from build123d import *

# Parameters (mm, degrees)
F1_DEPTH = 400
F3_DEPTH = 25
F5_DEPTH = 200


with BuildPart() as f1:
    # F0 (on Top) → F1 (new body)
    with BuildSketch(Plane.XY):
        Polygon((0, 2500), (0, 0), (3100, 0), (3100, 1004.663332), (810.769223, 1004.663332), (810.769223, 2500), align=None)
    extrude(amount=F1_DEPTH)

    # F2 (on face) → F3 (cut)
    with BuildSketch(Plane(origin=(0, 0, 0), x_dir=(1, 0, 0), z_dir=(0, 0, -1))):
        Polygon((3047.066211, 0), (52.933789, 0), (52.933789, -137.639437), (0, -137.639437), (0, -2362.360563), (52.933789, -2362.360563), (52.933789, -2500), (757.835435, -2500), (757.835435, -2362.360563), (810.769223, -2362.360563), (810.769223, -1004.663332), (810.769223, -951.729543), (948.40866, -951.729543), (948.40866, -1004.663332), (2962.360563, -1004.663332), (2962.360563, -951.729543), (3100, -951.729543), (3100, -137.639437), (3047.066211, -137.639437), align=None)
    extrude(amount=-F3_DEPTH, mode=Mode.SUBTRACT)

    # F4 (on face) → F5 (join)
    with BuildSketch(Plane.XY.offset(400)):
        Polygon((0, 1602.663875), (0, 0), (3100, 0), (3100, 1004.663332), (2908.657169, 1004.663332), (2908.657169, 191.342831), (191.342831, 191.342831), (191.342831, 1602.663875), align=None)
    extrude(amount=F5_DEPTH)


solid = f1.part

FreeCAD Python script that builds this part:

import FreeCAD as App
import Part
import Sketcher
from FreeCAD import Vector


def add_polygon(sketch, points):
    """Adds a closed chain of lines whose ends are joined by coincident constraints."""
    first, n = sketch.GeometryCount, len(points)
    for a, b in zip(points, points[1:] + points[:1]):
        sketch.addGeometry(Part.LineSegment(App.Vector(*a, 0), App.Vector(*b, 0)), False)
    for i in range(n):
        sketch.addConstraint(Sketcher.Constraint("Coincident", first + i, 2, first + (i + 1) % n, 1))

doc = App.newDocument("Part")
body = doc.addObject("PartDesign::Body", "Body")

sketch1 = body.newObject("Sketcher::SketchObject", "Sketch")
sketch1.AttachmentSupport = (doc.getObject("XY_Plane"), [""])
sketch1.MapMode = "FlatFace"
add_polygon(sketch1, [(0, 2500), (0, 0), (3100, 0), (3100, 1005), (811, 1005), (811, 2500)])
sketch1.addConstraint([
    Sketcher.Constraint("Vertical", 0),
    Sketcher.Constraint("Horizontal", 1),
    Sketcher.Constraint("Vertical", 2),
    Sketcher.Constraint("Horizontal", 3),
    Sketcher.Constraint("Vertical", 4),
    Sketcher.Constraint("Horizontal", 5),
    Sketcher.Constraint("Coincident", 0, 2, -1, 1),
    Sketcher.Constraint("DistanceX", 1, 1, 1, 2, 3100.0),
    Sketcher.Constraint("DistanceY", 0, 2, 0, 1, 2500.0),
    Sketcher.Constraint("DistanceY", 2, 1, 2, 2, 1004.663332),
    Sketcher.Constraint("DistanceX", 3, 2, 3, 1, 2289.230777),
])
pad1 = body.newObject("PartDesign::Pad", "Pad")
pad1.Profile = sketch1
pad1.Length = 400

sketch2 = body.newObject("Sketcher::SketchObject", "Sketch001")
sketch2.AttachmentSupport = (doc.getObject("XY_Plane"), [""])
sketch2.MapMode = "FlatFace"
add_polygon(sketch2, [(3047, 0), (53, 0), (53, 138), (0, 138), (0, 2362), (53, 2362), (53, 2500), (758, 2500), (758, 2362), (811, 2362), (811, 952), (948, 952), (948, 1005), (2962, 1005), (2962, 952), (3100, 952), (3100, 138), (3047, 138)])
sketch2.addConstraint([
    Sketcher.Constraint("Horizontal", 0),
    Sketcher.Constraint("Vertical", 1),
    Sketcher.Constraint("Horizontal", 2),
    Sketcher.Constraint("Vertical", 3),
    Sketcher.Constraint("Horizontal", 4),
    Sketcher.Constraint("Vertical", 5),
    Sketcher.Constraint("Horizontal", 6),
    Sketcher.Constraint("Vertical", 7),
    Sketcher.Constraint("Horizontal", 8),
    Sketcher.Constraint("Vertical", 9),
    Sketcher.Constraint("Horizontal", 10),
    Sketcher.Constraint("Vertical", 11),
    Sketcher.Constraint("Horizontal", 12),
    Sketcher.Constraint("Vertical", 13),
    Sketcher.Constraint("Horizontal", 14),
    Sketcher.Constraint("Vertical", 15),
    Sketcher.Constraint("Horizontal", 16),
    Sketcher.Constraint("Vertical", 17),
    Sketcher.Constraint("PointOnObject", 0, 2, -1),
    Sketcher.Constraint("PointOnObject", 2, 2, -2),
    Sketcher.Constraint("Horizontal", 4, 2, 7, 2),
    Sketcher.Constraint("Horizontal", 10, 2, 13, 2),
    Sketcher.Constraint("Horizontal", 2, 2, 15, 2),
    Sketcher.Constraint("Vertical", 1, 2, 4, 2),
    Sketcher.Constraint("Equal", 4, 8),
    Sketcher.Constraint("Equal", 10, 14),
    Sketcher.Constraint("Equal", 8, 16),
    Sketcher.Constraint("Equal", 14, 1),
    Sketcher.Constraint("Equal", 1, 5),
    Sketcher.Constraint("Equal", 16, 11),
    Sketcher.Constraint("DistanceY", -1, 1, 5, 2, 2500.0),
    Sketcher.Constraint("DistanceX", -1, 1, 14, 2, 3100.0),
    Sketcher.Constraint("DistanceX", 0, 2, 0, 1, 2994.132422),
    Sketcher.Constraint("DistanceY", 9, 2, 9, 1, 1410.63102),
    Sketcher.Constraint("DistanceX", 6, 1, 6, 2, 704.901646),
    Sketcher.Constraint("DistanceX", 10, 1, 10, 2, 137.639437),
])
pocket1 = body.newObject("PartDesign::Pocket", "Pocket")
pocket1.Profile = sketch2
pocket1.Length = 25
pocket1.Reversed = True

sketch3 = body.newObject("Sketcher::SketchObject", "Sketch002")
sketch3.AttachmentSupport = (doc.getObject("XY_Plane"), [""])
sketch3.MapMode = "FlatFace"
sketch3.AttachmentOffset = App.Placement(Vector(0, 0, 400), App.Rotation())
add_polygon(sketch3, [(0, 1603), (0, 0), (3100, 0), (3100, 1005), (2909, 1005), (2909, 191), (191, 191), (191, 1603)])
sketch3.addConstraint([
    Sketcher.Constraint("Vertical", 0),
    Sketcher.Constraint("Horizontal", 1),
    Sketcher.Constraint("Vertical", 2),
    Sketcher.Constraint("Horizontal", 3),
    Sketcher.Constraint("Vertical", 4),
    Sketcher.Constraint("Horizontal", 5),
    Sketcher.Constraint("Vertical", 6),
    Sketcher.Constraint("Horizontal", 7),
    Sketcher.Constraint("Coincident", 0, 2, -1, 1),
    Sketcher.Constraint("Equal", 3, 7),
    Sketcher.Constraint("DistanceX", 1, 1, 1, 2, 3100.0),
    Sketcher.Constraint("DistanceY", 4, 2, 4, 1, 813.320501),
    Sketcher.Constraint("DistanceX", 3, 2, 3, 1, 191.342831),
    Sketcher.Constraint("DistanceY", 2, 1, 2, 2, 1004.663332),
    Sketcher.Constraint("DistanceY", 0, 2, 0, 1, 1602.663875),
])
pad2 = body.newObject("PartDesign::Pad", "Pad001")
pad2.Profile = sketch3
pad2.Length = 200

doc.recompute()
